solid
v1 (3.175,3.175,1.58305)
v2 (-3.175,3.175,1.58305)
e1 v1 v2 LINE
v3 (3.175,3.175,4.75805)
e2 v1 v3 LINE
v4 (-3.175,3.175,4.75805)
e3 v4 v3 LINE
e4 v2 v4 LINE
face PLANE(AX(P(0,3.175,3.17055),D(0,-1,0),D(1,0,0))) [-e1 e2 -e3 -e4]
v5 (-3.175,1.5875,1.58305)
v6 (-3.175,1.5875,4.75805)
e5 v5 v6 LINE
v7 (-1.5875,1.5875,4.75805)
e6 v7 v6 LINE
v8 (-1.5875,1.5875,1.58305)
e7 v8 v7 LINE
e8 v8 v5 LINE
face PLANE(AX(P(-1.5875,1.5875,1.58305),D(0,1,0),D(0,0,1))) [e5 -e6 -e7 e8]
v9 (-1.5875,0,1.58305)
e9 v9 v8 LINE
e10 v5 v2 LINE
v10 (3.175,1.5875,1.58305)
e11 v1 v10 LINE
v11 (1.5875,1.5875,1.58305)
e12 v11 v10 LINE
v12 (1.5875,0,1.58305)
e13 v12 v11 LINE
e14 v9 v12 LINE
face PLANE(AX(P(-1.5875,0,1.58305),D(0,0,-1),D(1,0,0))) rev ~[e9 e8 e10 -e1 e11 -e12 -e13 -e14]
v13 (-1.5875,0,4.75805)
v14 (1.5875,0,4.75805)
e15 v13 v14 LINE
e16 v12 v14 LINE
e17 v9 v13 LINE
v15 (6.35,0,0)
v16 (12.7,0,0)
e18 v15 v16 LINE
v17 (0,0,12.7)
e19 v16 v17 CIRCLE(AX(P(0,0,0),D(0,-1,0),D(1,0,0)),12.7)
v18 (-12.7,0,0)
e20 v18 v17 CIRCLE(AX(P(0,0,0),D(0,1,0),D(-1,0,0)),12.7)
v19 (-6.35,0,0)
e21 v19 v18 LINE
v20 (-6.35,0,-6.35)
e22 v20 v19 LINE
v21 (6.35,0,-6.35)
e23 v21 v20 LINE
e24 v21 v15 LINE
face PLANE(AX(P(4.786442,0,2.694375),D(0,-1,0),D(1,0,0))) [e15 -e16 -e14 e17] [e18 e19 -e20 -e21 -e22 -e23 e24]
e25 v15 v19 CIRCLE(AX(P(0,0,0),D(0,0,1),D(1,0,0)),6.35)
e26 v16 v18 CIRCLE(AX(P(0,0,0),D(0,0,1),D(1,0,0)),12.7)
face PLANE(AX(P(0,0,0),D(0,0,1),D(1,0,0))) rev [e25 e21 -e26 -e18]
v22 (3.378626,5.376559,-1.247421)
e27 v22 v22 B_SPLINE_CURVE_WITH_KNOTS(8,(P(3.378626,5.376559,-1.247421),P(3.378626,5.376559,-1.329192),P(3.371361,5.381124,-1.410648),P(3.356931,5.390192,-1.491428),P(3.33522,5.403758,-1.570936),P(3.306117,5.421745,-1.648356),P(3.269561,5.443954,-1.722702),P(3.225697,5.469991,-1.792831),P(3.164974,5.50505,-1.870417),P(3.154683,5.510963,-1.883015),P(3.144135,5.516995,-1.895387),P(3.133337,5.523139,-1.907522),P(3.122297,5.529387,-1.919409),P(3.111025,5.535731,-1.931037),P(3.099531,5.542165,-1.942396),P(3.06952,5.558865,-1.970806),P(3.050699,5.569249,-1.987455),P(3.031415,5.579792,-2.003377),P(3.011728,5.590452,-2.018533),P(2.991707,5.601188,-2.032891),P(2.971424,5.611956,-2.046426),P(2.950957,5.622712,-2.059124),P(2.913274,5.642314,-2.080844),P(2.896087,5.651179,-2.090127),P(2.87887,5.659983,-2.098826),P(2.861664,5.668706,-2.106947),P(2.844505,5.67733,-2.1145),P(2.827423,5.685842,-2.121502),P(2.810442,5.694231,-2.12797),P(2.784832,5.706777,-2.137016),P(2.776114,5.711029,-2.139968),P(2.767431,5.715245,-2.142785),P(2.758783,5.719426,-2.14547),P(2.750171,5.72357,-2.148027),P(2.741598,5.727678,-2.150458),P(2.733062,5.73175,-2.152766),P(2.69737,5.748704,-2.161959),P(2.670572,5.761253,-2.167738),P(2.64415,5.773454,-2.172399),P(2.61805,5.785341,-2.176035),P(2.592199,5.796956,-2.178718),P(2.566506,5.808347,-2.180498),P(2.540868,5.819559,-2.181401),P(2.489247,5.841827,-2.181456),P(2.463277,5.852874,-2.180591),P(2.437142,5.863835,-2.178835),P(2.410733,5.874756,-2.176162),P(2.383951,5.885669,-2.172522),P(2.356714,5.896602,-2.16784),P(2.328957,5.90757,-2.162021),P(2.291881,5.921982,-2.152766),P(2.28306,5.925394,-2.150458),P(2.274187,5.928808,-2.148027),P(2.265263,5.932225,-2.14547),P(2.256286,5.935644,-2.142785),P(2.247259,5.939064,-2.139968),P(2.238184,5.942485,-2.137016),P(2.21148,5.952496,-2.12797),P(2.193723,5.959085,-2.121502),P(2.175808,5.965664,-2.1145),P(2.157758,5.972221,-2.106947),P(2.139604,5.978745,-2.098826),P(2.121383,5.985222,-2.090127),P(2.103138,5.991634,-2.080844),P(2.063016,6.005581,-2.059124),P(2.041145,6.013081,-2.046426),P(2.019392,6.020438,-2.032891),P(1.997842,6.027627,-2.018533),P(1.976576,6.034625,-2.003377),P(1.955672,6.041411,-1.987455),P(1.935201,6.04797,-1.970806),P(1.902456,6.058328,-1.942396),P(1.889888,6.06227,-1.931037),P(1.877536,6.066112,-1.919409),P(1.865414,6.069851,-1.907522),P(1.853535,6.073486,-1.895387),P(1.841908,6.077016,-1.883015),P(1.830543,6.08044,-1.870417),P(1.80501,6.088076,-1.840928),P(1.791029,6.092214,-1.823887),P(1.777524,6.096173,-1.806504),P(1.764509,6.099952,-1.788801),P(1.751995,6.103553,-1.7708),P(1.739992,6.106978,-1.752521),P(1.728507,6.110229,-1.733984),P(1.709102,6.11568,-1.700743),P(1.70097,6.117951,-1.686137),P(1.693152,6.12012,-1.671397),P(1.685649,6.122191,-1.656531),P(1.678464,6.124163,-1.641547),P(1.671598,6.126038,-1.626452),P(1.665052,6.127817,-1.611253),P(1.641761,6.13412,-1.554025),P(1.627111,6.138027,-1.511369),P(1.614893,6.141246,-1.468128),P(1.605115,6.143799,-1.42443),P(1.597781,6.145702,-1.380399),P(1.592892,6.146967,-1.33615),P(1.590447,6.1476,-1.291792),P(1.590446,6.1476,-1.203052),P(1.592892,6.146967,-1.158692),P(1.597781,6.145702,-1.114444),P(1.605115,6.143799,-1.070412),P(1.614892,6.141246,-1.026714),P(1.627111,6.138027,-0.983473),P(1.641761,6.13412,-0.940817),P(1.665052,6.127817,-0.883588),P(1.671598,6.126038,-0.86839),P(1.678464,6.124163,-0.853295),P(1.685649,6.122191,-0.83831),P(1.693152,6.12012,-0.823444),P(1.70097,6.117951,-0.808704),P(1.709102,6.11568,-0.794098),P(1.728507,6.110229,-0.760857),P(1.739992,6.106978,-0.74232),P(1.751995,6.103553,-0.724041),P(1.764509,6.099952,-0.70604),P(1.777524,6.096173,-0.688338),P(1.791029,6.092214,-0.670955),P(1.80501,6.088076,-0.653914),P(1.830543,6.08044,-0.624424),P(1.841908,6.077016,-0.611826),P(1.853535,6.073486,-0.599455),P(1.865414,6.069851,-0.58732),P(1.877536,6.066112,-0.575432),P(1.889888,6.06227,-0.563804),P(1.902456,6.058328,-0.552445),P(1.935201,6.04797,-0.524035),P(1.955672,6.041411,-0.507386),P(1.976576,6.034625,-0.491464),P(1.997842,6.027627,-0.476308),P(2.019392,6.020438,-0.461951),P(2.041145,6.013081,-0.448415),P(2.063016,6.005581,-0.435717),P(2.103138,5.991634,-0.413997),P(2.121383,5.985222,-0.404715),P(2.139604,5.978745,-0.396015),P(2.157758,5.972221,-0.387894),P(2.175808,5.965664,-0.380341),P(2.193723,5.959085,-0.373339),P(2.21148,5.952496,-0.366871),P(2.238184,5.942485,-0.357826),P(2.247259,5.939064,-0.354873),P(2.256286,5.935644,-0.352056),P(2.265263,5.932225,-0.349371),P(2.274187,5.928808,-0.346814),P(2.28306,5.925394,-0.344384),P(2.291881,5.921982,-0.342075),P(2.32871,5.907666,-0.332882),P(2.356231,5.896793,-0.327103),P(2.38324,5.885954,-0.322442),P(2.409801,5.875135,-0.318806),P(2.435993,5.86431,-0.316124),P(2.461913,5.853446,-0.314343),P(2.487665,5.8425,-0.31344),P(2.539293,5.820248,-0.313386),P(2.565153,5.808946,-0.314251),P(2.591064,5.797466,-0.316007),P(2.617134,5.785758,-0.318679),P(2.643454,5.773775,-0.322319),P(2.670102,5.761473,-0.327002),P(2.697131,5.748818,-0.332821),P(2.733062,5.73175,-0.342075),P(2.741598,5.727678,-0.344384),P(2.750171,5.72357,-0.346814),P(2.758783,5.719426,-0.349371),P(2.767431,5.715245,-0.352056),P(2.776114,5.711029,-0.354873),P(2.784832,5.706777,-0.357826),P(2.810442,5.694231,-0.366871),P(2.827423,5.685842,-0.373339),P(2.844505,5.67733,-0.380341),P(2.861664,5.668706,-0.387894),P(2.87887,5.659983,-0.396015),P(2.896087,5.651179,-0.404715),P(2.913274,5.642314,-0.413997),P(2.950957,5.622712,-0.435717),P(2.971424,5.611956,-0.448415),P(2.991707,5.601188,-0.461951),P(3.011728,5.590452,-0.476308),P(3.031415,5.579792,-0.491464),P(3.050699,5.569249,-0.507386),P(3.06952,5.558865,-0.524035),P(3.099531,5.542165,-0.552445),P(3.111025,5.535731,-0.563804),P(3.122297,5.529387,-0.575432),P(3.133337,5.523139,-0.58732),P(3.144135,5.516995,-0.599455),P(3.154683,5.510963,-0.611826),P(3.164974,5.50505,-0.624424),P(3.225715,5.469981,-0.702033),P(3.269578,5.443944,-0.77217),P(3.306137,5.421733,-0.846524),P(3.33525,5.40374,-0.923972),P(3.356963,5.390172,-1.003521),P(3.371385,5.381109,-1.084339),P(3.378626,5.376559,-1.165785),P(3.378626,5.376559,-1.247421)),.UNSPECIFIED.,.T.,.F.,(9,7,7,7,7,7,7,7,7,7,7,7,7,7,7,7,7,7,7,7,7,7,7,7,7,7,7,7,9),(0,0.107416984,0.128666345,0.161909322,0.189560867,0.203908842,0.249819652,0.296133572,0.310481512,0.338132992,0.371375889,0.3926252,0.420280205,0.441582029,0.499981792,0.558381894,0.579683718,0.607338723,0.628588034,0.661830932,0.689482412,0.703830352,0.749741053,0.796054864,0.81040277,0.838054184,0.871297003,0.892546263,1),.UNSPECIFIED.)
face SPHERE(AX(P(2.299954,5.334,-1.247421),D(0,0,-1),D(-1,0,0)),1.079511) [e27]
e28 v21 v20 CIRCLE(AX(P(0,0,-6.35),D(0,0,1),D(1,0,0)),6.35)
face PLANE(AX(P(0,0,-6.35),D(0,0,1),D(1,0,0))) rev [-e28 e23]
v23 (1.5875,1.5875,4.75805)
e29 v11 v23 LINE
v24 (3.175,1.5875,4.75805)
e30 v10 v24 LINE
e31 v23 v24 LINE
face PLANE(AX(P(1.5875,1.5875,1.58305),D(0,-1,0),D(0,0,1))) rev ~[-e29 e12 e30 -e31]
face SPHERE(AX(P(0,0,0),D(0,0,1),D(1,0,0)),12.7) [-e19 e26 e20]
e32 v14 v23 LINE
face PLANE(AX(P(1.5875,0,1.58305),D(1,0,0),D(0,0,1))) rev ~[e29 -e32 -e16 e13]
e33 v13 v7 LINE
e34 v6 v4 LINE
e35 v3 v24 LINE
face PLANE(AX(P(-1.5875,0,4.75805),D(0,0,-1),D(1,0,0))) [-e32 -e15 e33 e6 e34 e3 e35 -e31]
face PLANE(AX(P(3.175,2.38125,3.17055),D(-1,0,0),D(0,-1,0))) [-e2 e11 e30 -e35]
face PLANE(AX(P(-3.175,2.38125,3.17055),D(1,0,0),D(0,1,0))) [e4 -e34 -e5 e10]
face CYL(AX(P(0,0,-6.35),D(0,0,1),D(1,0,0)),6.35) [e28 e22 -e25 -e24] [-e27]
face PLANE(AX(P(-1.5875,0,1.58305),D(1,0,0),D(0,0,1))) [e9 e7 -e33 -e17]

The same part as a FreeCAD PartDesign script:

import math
import FreeCAD as App
import Part
import Sketcher

V = App.Vector
Q = App.Units.Quantity


def add_polygon(sketch, points):
    """Adds a closed chain of lines whose ends are joined by coincident constraints."""
    first, n = sketch.GeometryCount, len(points)
    for a, b in zip(points, points[1:] + points[:1]):
        sketch.addGeometry(Part.LineSegment(App.Vector(*a, 0), App.Vector(*b, 0)), False)
    for i in range(n):
        sketch.addConstraint(Sketcher.Constraint("Coincident", first + i, 2, first + (i + 1) % n, 1))

doc = App.newDocument("Part")
body = doc.addObject("PartDesign::Body", "Body")

# Sketch on XZ plane
sketch1 = body.newObject("Sketcher::SketchObject", "Sketch")
sketch1.AttachmentSupport = (doc.getObject("XZ_Plane"), [""])
sketch1.MapMode = "FlatFace"
sketch1.addGeometry([
    Part.LineSegment(V(6, 0, 0), V(13, 0, 0)),  # 0
    Part.ArcOfCircle(Part.Circle(V(0, 0, 0), V(0, 0, 1), 13), math.radians(0), math.radians(90)),  # 1
    Part.LineSegment(V(0, 13, 0), V(0, -6, 0)),  # 2
    Part.LineSegment(V(0, -6, 0), V(6, -6, 0)),  # 3
    Part.LineSegment(V(6, -6, 0), V(6, 0, 0)),  # 4
], False)
sketch1.addConstraint([
    Sketcher.Constraint("Coincident", 0, 2, 1, 1),
    Sketcher.Constraint("Coincident", 1, 2, 2, 1),
    Sketcher.Constraint("Coincident", 2, 2, 3, 1),
    Sketcher.Constraint("Coincident", 3, 2, 4, 1),
    Sketcher.Constraint("Coincident", 4, 2, 0, 1),
    Sketcher.Constraint("Horizontal", 0),
    Sketcher.Constraint("Vertical", 2),
    Sketcher.Constraint("Horizontal", 3),
    Sketcher.Constraint("Vertical", 4),
    Sketcher.Constraint("Coincident", 1, 3, -1, 1),
    Sketcher.Constraint("PointOnObject", 0, 2, -1),
    Sketcher.Constraint("PointOnObject", 1, 2, -2),
    Sketcher.Constraint("Equal", 0, 3),
    Sketcher.Constraint("Equal", 3, 4),
    Sketcher.Constraint("Radius", 1, Q("0.5 in")),
])
revolution = body.newObject("PartDesign::Revolution", "Revolution")
revolution.Profile = sketch1
revolution.ReferenceAxis = (sketch1, ["V_Axis"])
revolution.Angle = 180

# Sketch on XZ plane
sketch2 = body.newObject("Sketcher::SketchObject", "Sketch001")
sketch2.AttachmentSupport = (doc.getObject("XZ_Plane"), [""])
sketch2.MapMode = "FlatFace"
add_polygon(sketch2, [(-1.6, 4.8), (-1.6, 1.6), (1.6, 1.6), (1.6, 4.8)])  # lines 0-3
sketch2.addConstraint([
    Sketcher.Constraint("Vertical", 0),
    Sketcher.Constraint("Horizontal", 1),
    Sketcher.Constraint("Vertical", 2),
    Sketcher.Constraint("Horizontal", 3),
    Sketcher.Constraint("Equal", 3, 0),
    Sketcher.Constraint("DistanceX", 1, 1, 1, 2, Q("0.125 in")),
    Sketcher.Constraint("DistanceX", 0, 2, -1, 1, Q("0.0625 in")),
    Sketcher.Constraint("DistanceY", -1, 1, 0, 2, Q("1.58305 mm")),
])
pocket1 = body.newObject("PartDesign::Pocket", "Pocket")
pocket1.Profile = sketch2
pocket1.Length = Q("0.125 in")

# Sketch on YZ plane
sketch3 = body.newObject("Sketcher::SketchObject", "Sketch002")
sketch3.AttachmentSupport = (doc.getObject("YZ_Plane"), [""])
sketch3.MapMode = "FlatFace"
sketch3.AttachmentOffset = App.Placement(V(0, 0, 0.0625 * 25.4), App.Rotation())
add_polygon(sketch3, [(3.2, 4.8), (3.2, 1.6), (1.6, 1.6), (1.6, 4.8)])  # lines 0-3
sketch3.addConstraint([
    Sketcher.Constraint("Vertical", 0),
    Sketcher.Constraint("Horizontal", 1),
    Sketcher.Constraint("Vertical", 2),
    Sketcher.Constraint("Horizontal", 3),
    Sketcher.Constraint("DistanceX", 1, 2, 1, 1, Q("0.0625 in")),
    Sketcher.Constraint("DistanceY", 0, 2, 0, 1, Q("0.125 in")),
    Sketcher.Constraint("DistanceX", -1, 1, 0, 2, Q("0.125 in")),
    Sketcher.Constraint("DistanceY", -1, 1, 0, 2, Q("1.58305 mm")),
])
pocket2 = body.newObject("PartDesign::Pocket", "Pocket001")
pocket2.Profile = sketch3
pocket2.Length = Q("0.0625 in")
pocket2.Reversed = True

# Sketch on YZ plane
sketch4 = body.newObject("Sketcher::SketchObject", "Sketch003")
sketch4.AttachmentSupport = (doc.getObject("YZ_Plane"), [""])
sketch4.MapMode = "FlatFace"
sketch4.AttachmentOffset = App.Placement(V(0, 0, -0.0625 * 25.4), App.Rotation())
add_polygon(sketch4, [(1.6, 4.8), (1.6, 1.6), (3.2, 1.6), (3.2, 4.8)])  # lines 0-3
sketch4.addConstraint([
    Sketcher.Constraint("Vertical", 0),
    Sketcher.Constraint("Horizontal", 1),
    Sketcher.Constraint("Vertical", 2),
    Sketcher.Constraint("Horizontal", 3),
    Sketcher.Constraint("DistanceX", 1, 1, 1, 2, Q("0.0625 in")),
    Sketcher.Constraint("DistanceY", 0, 2, 0, 1, Q("0.125 in")),
    Sketcher.Constraint("DistanceX", -1, 1, 0, 2, Q("0.0625 in")),
    Sketcher.Constraint("DistanceY", -1, 1, 0, 2, Q("1.58305 mm")),
])
pocket3 = body.newObject("PartDesign::Pocket", "Pocket002")
pocket3.Profile = sketch4
pocket3.Length = Q("0.0625 in")

# Sketch on XZ plane
sketch5 = body.newObject("Sketcher::SketchObject", "Sketch004")
sketch5.AttachmentSupport = (doc.getObject("XZ_Plane"), [""])
sketch5.MapMode = "FlatFace"
sketch5.AttachmentOffset = App.Placement(V(0, 0, -0.21 * 25.4), App.Rotation())
sketch5.addGeometry([
    Part.ArcOfCircle(Part.Circle(V(2.3, -1.2, 0), V(0, 0, 1), 1.1), math.radians(90), math.radians(270)),
    Part.LineSegment(V(2.3, -2.3, 0), V(2.3, -0.2, 0)),
], False)
sketch5.addGeometry(Part.LineSegment(V(2.3, -0.2, 0), V(2.3, -2.3, 0)), True)  # axis
sketch5.addConstraint([
    Sketcher.Constraint("Coincident", 0, 1, 1, 2),
    Sketcher.Constraint("Coincident", 1, 1, 0, 2),
    Sketcher.Constraint("Vertical", 1),
    Sketcher.Constraint("Vertical", 2),
    Sketcher.Constraint("Coincident", 2, 1, 0, 1),
    Sketcher.Constraint("Equal", 1, 2),
    Sketcher.Constraint("Radius", 0, Q("1.079511 mm")),
    Sketcher.Constraint("DistanceY", 0, 3, -1, 1, Q("1.247421 mm")),
    Sketcher.Constraint("DistanceX", -1, 1, 0, 3, Q("2.299954 mm")),
    Sketcher.Constraint("DistanceX", -1, 1, 0, 1, Q("2.299954 mm")),
])
revolution2 = body.newObject("PartDesign::Revolution", "Revolution001")
revolution2.Profile = sketch5
revolution2.ReferenceAxis = (sketch5, ["Axis0"])
revolution2.Angle = 360

doc.recompute()
